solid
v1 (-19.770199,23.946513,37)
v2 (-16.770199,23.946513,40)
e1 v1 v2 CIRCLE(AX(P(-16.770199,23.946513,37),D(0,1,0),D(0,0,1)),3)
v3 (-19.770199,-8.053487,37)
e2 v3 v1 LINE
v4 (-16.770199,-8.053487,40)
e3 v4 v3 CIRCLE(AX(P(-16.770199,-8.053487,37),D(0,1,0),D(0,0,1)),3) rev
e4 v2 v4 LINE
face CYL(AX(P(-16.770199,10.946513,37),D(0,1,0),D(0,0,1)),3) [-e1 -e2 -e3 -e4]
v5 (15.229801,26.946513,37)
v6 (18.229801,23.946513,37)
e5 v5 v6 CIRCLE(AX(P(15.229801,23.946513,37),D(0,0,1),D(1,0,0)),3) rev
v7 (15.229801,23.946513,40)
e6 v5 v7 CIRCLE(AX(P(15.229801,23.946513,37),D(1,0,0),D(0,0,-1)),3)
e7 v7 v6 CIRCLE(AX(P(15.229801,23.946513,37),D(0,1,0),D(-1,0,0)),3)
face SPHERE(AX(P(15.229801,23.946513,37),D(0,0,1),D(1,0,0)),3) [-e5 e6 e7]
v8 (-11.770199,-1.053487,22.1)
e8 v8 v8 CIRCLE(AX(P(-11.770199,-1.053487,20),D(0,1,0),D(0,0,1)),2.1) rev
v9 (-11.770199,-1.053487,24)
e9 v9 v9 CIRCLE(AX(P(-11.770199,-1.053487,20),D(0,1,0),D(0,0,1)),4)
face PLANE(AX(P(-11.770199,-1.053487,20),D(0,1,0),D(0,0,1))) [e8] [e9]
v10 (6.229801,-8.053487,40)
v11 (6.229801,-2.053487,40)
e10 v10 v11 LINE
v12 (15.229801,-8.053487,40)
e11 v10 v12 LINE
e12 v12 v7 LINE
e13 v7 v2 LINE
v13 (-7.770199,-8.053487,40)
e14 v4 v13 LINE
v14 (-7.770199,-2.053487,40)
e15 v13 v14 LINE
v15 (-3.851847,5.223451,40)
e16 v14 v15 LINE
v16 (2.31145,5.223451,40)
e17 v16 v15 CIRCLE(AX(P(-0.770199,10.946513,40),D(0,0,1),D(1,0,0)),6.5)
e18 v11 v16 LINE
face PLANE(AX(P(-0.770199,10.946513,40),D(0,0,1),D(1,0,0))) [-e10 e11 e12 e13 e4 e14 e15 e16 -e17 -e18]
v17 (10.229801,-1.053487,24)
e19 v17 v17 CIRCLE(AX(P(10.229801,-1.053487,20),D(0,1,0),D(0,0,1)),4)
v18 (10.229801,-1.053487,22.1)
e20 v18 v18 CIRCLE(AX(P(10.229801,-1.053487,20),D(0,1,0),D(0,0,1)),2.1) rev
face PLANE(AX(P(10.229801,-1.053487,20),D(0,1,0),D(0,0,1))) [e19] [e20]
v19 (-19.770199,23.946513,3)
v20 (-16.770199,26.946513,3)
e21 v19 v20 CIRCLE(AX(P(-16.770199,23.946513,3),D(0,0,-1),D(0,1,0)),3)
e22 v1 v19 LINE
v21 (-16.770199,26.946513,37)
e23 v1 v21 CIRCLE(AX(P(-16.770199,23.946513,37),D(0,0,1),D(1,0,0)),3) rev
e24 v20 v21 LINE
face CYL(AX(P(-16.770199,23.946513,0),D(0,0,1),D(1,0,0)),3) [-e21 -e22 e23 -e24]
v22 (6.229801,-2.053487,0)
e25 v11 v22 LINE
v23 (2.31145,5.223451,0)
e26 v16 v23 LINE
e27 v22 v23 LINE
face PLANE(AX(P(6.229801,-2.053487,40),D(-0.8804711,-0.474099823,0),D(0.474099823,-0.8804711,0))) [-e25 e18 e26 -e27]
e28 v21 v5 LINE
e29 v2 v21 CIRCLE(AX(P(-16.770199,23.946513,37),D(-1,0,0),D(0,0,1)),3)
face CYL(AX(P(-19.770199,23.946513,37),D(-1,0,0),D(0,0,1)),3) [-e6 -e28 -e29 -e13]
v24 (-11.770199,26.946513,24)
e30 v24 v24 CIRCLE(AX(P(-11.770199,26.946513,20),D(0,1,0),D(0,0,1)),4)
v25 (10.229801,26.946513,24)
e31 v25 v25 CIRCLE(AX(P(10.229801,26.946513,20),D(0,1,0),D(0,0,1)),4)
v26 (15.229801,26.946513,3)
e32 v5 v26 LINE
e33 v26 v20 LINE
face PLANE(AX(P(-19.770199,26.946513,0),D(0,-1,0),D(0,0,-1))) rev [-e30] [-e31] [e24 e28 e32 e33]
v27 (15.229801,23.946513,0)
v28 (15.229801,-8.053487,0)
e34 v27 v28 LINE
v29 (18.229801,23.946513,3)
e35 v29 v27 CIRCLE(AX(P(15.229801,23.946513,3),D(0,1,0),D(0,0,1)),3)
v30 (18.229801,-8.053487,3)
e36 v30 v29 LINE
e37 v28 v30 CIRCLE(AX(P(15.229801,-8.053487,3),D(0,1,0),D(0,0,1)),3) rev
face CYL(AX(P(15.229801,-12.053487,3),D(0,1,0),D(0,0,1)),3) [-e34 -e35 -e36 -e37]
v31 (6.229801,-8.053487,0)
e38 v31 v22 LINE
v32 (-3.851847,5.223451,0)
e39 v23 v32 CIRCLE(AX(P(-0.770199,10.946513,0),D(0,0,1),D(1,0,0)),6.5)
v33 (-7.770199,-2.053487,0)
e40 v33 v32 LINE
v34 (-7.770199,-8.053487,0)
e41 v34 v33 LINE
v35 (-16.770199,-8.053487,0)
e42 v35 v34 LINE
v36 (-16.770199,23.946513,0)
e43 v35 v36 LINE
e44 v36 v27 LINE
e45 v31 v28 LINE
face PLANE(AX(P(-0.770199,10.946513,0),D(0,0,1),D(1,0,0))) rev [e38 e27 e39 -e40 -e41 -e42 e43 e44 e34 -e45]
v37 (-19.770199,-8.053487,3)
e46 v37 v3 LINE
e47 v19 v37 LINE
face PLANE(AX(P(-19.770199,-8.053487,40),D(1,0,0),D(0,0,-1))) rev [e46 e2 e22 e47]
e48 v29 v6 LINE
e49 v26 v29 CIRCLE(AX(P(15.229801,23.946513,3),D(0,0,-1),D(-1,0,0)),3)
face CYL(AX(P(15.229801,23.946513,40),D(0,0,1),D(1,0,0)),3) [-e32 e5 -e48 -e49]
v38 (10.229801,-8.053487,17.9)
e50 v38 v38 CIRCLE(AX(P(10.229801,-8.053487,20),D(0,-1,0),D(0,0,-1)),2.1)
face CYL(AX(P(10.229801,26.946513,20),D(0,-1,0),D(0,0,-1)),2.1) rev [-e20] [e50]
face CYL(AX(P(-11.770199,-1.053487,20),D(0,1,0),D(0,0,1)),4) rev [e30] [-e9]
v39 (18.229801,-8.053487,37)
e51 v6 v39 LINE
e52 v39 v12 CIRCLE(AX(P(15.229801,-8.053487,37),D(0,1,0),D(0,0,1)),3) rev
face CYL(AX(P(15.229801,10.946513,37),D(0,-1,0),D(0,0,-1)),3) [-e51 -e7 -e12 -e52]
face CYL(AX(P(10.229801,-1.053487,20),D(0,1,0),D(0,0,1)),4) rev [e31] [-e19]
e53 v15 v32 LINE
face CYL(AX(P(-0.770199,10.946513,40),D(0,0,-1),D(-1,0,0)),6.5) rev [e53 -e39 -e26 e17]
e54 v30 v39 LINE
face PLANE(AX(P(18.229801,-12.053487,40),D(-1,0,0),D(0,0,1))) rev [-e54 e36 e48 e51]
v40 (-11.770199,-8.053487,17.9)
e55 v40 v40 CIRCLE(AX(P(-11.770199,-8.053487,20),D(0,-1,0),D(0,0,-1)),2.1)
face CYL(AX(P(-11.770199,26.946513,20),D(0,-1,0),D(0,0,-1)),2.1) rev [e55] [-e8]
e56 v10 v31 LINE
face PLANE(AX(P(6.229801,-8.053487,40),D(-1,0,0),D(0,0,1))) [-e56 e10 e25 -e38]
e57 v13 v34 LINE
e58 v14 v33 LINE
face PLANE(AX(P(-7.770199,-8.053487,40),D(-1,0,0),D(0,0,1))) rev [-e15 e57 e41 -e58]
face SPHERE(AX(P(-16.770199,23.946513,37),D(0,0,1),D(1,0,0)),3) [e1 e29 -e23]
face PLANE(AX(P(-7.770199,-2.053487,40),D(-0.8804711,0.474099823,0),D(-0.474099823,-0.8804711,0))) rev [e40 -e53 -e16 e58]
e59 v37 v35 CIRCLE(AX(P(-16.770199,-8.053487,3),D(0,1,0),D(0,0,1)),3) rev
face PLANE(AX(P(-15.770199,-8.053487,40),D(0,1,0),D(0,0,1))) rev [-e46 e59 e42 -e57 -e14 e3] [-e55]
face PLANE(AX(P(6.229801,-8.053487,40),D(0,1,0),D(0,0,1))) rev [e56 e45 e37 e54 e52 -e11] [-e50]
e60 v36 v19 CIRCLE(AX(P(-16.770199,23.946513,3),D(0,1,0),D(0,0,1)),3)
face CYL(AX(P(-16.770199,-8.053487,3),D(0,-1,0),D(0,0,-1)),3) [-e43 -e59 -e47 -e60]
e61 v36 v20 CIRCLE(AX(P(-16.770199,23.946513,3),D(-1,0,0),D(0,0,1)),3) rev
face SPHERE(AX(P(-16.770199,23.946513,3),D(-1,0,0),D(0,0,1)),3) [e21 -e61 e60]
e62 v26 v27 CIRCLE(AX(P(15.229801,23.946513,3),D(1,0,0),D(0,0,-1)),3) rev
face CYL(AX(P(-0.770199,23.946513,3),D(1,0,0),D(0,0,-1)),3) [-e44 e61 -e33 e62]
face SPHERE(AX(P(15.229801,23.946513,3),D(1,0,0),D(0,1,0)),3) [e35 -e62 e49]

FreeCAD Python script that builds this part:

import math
import FreeCAD as App
import Part
import Sketcher


def edges_at(feature, points):
    """Names of the edges that pass closest to the given points."""
    edges = feature.Shape.Edges
    near = lambda p: min(range(len(edges)), key=lambda i: edges[i].distToShape(Part.Vertex(*p))[0])
    return sorted({f"Edge{near(p) + 1}" for p in points})


def faces_at(feature, points):
    """Names of the faces that lie closest to the given points."""
    faces = feature.Shape.Faces
    near = lambda p: min(range(len(faces)), key=lambda i: faces[i].distToShape(Part.Vertex(*p))[0])
    return sorted({f"Face{near(p) + 1}" for p in points})

doc = App.newDocument("Part")
body = doc.addObject("PartDesign::Body", "Body")

sketch1 = doc.addObject("Sketcher::SketchObject", "Sketch")
body.addObject(sketch1)
sketch1.AttachmentSupport = (doc.XY_Plane, [""])
sketch1.MapMode = "FlatFace"
sketch1.addGeometry([
    Part.LineSegment(App.Vector(-15.8, -12.1, 0), App.Vector(14.2, -12.1, 0)),
    Part.LineSegment(App.Vector(14.2, -12.1, 0), App.Vector(14.2, -8.1, 0)),
    Part.LineSegment(App.Vector(14.2, -8.1, 0), App.Vector(6.2, -8.1, 0)),
    Part.LineSegment(App.Vector(6.2, -8.1, 0), App.Vector(6.2, -2.1, 0)),
    Part.LineSegment(App.Vector(6.2, -2.1, 0), App.Vector(2.3, 5.2, 0)),
    Part.ArcOfCircle(Part.Circle(App.Vector(-0.8, 10.9, 0), App.Vector(0, 0, 1), 6.5), math.radians(-62), math.radians(242)),
    Part.LineSegment(App.Vector(-3.9, 5.2, 0), App.Vector(-7.8, -2.1, 0)),
    Part.LineSegment(App.Vector(-7.8, -2.1, 0), App.Vector(-7.8, -8.1, 0)),
    Part.LineSegment(App.Vector(-7.8, -8.1, 0), App.Vector(-15.8, -8.1, 0)),
    Part.LineSegment(App.Vector(-15.8, -8.1, 0), App.Vector(-15.8, -12.1, 0)),
], False)
sketch1.addConstraint([
    Sketcher.Constraint("Coincident", 0, 2, 1, 1),
    Sketcher.Constraint("Coincident", 1, 2, 2, 1),
    Sketcher.Constraint("Coincident", 2, 2, 3, 1),
    Sketcher.Constraint("Coincident", 3, 2, 4, 1),
    Sketcher.Constraint("Coincident", 4, 2, 5, 1),
    Sketcher.Constraint("Coincident", 5, 2, 6, 1),
    Sketcher.Constraint("Coincident", 6, 2, 7, 1),
    Sketcher.Constraint("Coincident", 7, 2, 8, 1),
    Sketcher.Constraint("Coincident", 8, 2, 9, 1),
    Sketcher.Constraint("Coincident", 9, 2, 0, 1),
    Sketcher.Constraint("Horizontal", 0),
    Sketcher.Constraint("Vertical", 1),
    Sketcher.Constraint("Horizontal", 2),
    Sketcher.Constraint("Vertical", 3),
    Sketcher.Constraint("Vertical", 7),
    Sketcher.Constraint("Horizontal", 8),
    Sketcher.Constraint("Vertical", 9),
    Sketcher.Constraint("Horizontal", 4, 2, 5, 2),
    Sketcher.Constraint("Horizontal", 3, 2, 6, 2),
    Sketcher.Constraint("Horizontal", 2, 2, 7, 2),
    Sketcher.Constraint("Equal", 2, 8),
    Sketcher.Constraint("Equal", 4, 6),
    Sketcher.Constraint("Radius", 5, 6.5),
    Sketcher.Constraint("DistanceX", 0, 1, 0, 2, 30.0),
    Sketcher.Constraint("DistanceX", 2, 2, 2, 1, 8.0),
    Sketcher.Constraint("DistanceY", 1, 1, 1, 2, 4.0),
    Sketcher.Constraint("DistanceY", 3, 1, 3, 2, 6.0),
    Sketcher.Constraint("DistanceY", 0, 2, 5, 3, 23.0),
    Sketcher.Constraint("DistanceX", 5, 3, -1, 1, 0.770199),
    Sketcher.Constraint("DistanceX", -1, 1, 4, 2, 2.31145),
    Sketcher.Constraint("DistanceY", -1, 1, 4, 2, 5.223451),
])
pad1 = doc.addObject("PartDesign::Pad", "Pad")
body.addObject(pad1)
pad1.Profile = sketch1
pad1.Length = 40
doc.recompute()

thickness = doc.addObject("PartDesign::Thickness", "Thickness")
body.addObject(thickness)
thickness.Base = (pad1, faces_at(pad1, [(-0.77, 2.697, 0), (-0.77, 2.697, 40)]))
thickness.Value = 4
thickness.Reversed = False
thickness.Join = "Intersection"

sketch2 = doc.addObject("Sketcher::SketchObject", "Sketch001")
body.addObject(sketch2)
sketch2.AttachmentSupport = (doc.XY_Plane, [""])
sketch2.MapMode = "FlatFace"
sketch2.AttachmentOffset = App.Placement(App.Vector(0, 0, 40), App.Rotation())
sketch2.addGeometry([
    Part.LineSegment(App.Vector(-20, -8, 0), App.Vector(-20, -16, 0)),
    Part.LineSegment(App.Vector(-20, -16, 0), App.Vector(18, -16, 0)),
    Part.LineSegment(App.Vector(18, -16, 0), App.Vector(18, -8, 0)),
    Part.LineSegment(App.Vector(18, -8, 0), App.Vector(-20, -8, 0)),
], False)
sketch2.addConstraint([
    Sketcher.Constraint("Coincident", 0, 2, 1, 1),
    Sketcher.Constraint("Coincident", 1, 2, 2, 1),
    Sketcher.Constraint("Coincident", 2, 2, 3, 1),
    Sketcher.Constraint("Coincident", 3, 2, 0, 1),
    Sketcher.Constraint("Vertical", 0),
    Sketcher.Constraint("Horizontal", 1),
    Sketcher.Constraint("Vertical", 2),
    Sketcher.Constraint("Horizontal", 3),
    Sketcher.Constraint("DistanceX", 1, 1, 1, 2, 38.0),
    Sketcher.Constraint("DistanceY", 0, 2, 0, 1, 8.0),
    Sketcher.Constraint("DistanceX", 0, 2, -1, 1, 19.770199),
    Sketcher.Constraint("DistanceY", 0, 2, -1, 1, 16.053487),
])
pocket1 = doc.addObject("PartDesign::Pocket", "Pocket")
body.addObject(pocket1)
pocket1.Profile = sketch2
pocket1.Type = "ThroughAll"

sketch3 = doc.addObject("Sketcher::SketchObject", "Sketch002")
body.addObject(sketch3)
sketch3.AttachmentSupport = (doc.XY_Plane, [""])
sketch3.MapMode = "FlatFace"
sketch3.AttachmentOffset = App.Placement(App.Vector(0, 0, 40), App.Rotation())
sketch3.addGeometry([
    Part.LineSegment(App.Vector(18, 27, 0), App.Vector(-20, 27, 0)),
    Part.LineSegment(App.Vector(-20, 27, 0), App.Vector(-20, -8, 0)),
    Part.LineSegment(App.Vector(-20, -8, 0), App.Vector(-8, -8, 0)),
    Part.LineSegment(App.Vector(-8, -8, 0), App.Vector(-8, 18, 0)),
    Part.LineSegment(App.Vector(-8, 18, 0), App.Vector(6, 18, 0)),
    Part.LineSegment(App.Vector(6, 18, 0), App.Vector(6, -8, 0)),
    Part.LineSegment(App.Vector(6, -8, 0), App.Vector(18, -8, 0)),
    Part.LineSegment(App.Vector(18, -8, 0), App.Vector(18, 27, 0)),
], False)
sketch3.addConstraint([
    Sketcher.Constraint("Coincident", 0, 2, 1, 1),
    Sketcher.Constraint("Coincident", 1, 2, 2, 1),
    Sketcher.Constraint("Coincident", 2, 2, 3, 1),
    Sketcher.Constraint("Coincident", 3, 2, 4, 1),
    Sketcher.Constraint("Coincident", 4, 2, 5, 1),
    Sketcher.Constraint("Coincident", 5, 2, 6, 1),
    Sketcher.Constraint("Coincident", 6, 2, 7, 1),
    Sketcher.Constraint("Coincident", 7, 2, 0, 1),
    Sketcher.Constraint("Horizontal", 0),
    Sketcher.Constraint("Vertical", 1),
    Sketcher.Constraint("Horizontal", 2),
    Sketcher.Constraint("Vertical", 3),
    Sketcher.Constraint("Horizontal", 4),
    Sketcher.Constraint("Vertical", 5),
    Sketcher.Constraint("Horizontal", 6),
    Sketcher.Constraint("Vertical", 7),
    Sketcher.Constraint("Horizontal", 2, 2, 5, 2),
    Sketcher.Constraint("Equal", 2, 6),
    Sketcher.Constraint("DistanceX", 0, 2, 0, 1, 38.0),
    Sketcher.Constraint("DistanceX", 2, 1, 2, 2, 12.0),
    Sketcher.Constraint("DistanceY", 1, 2, 1, 1, 35.0),
    Sketcher.Constraint("DistanceY", 3, 1, 3, 2, 25.56542),
    Sketcher.Constraint("DistanceX", 0, 2, -1, 1, 19.770199),
    Sketcher.Constraint("DistanceY", -1, 1, 0, 2, 26.946513),
])
pad2 = doc.addObject("PartDesign::Pad", "Pad001")
body.addObject(pad2)
pad2.Profile = sketch3
pad2.Length = 40
pad2.Reversed = True

sketch4 = doc.addObject("Sketcher::SketchObject", "Sketch003")
body.addObject(sketch4)
sketch4.AttachmentSupport = (doc.XZ_Plane, [""])
sketch4.MapMode = "FlatFace"
sketch4.AttachmentOffset = App.Placement(App.Vector(0, 0, 8.053487), App.Rotation())
sketch4.addGeometry(Part.Circle(App.Vector(-11.8, 20, 0), App.Vector(0, 0, 1), 2.1), False)
sketch4.addConstraint([
    Sketcher.Constraint("Diameter", 0, 4.2),
    Sketcher.Constraint("DistanceY", -1, 1, 0, 3, 20.0),
    Sketcher.Constraint("DistanceX", 0, 3, -1, 1, 11.770199),
])
pocket2 = doc.addObject("PartDesign::Pocket", "Pocket001")
body.addObject(pocket2)
pocket2.Profile = sketch4
pocket2.Type = "ThroughAll"

sketch5 = doc.addObject("Sketcher::SketchObject", "Sketch004")
body.addObject(sketch5)
sketch5.AttachmentSupport = (doc.XZ_Plane, [""])
sketch5.MapMode = "FlatFace"
sketch5.AttachmentOffset = App.Placement(App.Vector(0, 0, -26.946513), App.Rotation())
sketch5.addGeometry(Part.Circle(App.Vector(-11.8, 20, 0), App.Vector(0, 0, 1), 4), False)
sketch5.addConstraint([
    Sketcher.Constraint("Diameter", 0, 8.0),
    Sketcher.Constraint("DistanceY", -1, 1, 0, 3, 20.0),
    Sketcher.Constraint("DistanceX", 0, 3, -1, 1, 11.770199),
])
pocket3 = doc.addObject("PartDesign::Pocket", "Pocket002")
body.addObject(pocket3)
pocket3.Profile = sketch5
pocket3.Length = 28
pocket3.Reversed = True
doc.recompute()

linearpattern = doc.addObject("PartDesign::LinearPattern", "LinearPattern")
body.addObject(linearpattern)
linearpattern.Originals = [pocket2, pocket3]
linearpattern.Direction = (doc.X_Axis, [""])
linearpattern.Mode = "offset"
linearpattern.Offset = 22
linearpattern.Occurrences = 2
body.Tip = linearpattern
doc.recompute()

fillet = doc.addObject("PartDesign::Fillet", "Fillet")
body.addObject(fillet)
fillet.Base = (linearpattern, edges_at(linearpattern, [
    (-0.77, 26.947, 40),
    (-19.77, 26.947, 20),
    (18.23, 26.947, 20),
    (-0.77, 26.947, 0),
    (-19.77, 9.447, 0),
    (-19.77, 9.447, 40),
    (18.23, 9.447, 0),
    (18.23, 9.447, 40),
]))
fillet.Radius = 3

doc.recompute()
